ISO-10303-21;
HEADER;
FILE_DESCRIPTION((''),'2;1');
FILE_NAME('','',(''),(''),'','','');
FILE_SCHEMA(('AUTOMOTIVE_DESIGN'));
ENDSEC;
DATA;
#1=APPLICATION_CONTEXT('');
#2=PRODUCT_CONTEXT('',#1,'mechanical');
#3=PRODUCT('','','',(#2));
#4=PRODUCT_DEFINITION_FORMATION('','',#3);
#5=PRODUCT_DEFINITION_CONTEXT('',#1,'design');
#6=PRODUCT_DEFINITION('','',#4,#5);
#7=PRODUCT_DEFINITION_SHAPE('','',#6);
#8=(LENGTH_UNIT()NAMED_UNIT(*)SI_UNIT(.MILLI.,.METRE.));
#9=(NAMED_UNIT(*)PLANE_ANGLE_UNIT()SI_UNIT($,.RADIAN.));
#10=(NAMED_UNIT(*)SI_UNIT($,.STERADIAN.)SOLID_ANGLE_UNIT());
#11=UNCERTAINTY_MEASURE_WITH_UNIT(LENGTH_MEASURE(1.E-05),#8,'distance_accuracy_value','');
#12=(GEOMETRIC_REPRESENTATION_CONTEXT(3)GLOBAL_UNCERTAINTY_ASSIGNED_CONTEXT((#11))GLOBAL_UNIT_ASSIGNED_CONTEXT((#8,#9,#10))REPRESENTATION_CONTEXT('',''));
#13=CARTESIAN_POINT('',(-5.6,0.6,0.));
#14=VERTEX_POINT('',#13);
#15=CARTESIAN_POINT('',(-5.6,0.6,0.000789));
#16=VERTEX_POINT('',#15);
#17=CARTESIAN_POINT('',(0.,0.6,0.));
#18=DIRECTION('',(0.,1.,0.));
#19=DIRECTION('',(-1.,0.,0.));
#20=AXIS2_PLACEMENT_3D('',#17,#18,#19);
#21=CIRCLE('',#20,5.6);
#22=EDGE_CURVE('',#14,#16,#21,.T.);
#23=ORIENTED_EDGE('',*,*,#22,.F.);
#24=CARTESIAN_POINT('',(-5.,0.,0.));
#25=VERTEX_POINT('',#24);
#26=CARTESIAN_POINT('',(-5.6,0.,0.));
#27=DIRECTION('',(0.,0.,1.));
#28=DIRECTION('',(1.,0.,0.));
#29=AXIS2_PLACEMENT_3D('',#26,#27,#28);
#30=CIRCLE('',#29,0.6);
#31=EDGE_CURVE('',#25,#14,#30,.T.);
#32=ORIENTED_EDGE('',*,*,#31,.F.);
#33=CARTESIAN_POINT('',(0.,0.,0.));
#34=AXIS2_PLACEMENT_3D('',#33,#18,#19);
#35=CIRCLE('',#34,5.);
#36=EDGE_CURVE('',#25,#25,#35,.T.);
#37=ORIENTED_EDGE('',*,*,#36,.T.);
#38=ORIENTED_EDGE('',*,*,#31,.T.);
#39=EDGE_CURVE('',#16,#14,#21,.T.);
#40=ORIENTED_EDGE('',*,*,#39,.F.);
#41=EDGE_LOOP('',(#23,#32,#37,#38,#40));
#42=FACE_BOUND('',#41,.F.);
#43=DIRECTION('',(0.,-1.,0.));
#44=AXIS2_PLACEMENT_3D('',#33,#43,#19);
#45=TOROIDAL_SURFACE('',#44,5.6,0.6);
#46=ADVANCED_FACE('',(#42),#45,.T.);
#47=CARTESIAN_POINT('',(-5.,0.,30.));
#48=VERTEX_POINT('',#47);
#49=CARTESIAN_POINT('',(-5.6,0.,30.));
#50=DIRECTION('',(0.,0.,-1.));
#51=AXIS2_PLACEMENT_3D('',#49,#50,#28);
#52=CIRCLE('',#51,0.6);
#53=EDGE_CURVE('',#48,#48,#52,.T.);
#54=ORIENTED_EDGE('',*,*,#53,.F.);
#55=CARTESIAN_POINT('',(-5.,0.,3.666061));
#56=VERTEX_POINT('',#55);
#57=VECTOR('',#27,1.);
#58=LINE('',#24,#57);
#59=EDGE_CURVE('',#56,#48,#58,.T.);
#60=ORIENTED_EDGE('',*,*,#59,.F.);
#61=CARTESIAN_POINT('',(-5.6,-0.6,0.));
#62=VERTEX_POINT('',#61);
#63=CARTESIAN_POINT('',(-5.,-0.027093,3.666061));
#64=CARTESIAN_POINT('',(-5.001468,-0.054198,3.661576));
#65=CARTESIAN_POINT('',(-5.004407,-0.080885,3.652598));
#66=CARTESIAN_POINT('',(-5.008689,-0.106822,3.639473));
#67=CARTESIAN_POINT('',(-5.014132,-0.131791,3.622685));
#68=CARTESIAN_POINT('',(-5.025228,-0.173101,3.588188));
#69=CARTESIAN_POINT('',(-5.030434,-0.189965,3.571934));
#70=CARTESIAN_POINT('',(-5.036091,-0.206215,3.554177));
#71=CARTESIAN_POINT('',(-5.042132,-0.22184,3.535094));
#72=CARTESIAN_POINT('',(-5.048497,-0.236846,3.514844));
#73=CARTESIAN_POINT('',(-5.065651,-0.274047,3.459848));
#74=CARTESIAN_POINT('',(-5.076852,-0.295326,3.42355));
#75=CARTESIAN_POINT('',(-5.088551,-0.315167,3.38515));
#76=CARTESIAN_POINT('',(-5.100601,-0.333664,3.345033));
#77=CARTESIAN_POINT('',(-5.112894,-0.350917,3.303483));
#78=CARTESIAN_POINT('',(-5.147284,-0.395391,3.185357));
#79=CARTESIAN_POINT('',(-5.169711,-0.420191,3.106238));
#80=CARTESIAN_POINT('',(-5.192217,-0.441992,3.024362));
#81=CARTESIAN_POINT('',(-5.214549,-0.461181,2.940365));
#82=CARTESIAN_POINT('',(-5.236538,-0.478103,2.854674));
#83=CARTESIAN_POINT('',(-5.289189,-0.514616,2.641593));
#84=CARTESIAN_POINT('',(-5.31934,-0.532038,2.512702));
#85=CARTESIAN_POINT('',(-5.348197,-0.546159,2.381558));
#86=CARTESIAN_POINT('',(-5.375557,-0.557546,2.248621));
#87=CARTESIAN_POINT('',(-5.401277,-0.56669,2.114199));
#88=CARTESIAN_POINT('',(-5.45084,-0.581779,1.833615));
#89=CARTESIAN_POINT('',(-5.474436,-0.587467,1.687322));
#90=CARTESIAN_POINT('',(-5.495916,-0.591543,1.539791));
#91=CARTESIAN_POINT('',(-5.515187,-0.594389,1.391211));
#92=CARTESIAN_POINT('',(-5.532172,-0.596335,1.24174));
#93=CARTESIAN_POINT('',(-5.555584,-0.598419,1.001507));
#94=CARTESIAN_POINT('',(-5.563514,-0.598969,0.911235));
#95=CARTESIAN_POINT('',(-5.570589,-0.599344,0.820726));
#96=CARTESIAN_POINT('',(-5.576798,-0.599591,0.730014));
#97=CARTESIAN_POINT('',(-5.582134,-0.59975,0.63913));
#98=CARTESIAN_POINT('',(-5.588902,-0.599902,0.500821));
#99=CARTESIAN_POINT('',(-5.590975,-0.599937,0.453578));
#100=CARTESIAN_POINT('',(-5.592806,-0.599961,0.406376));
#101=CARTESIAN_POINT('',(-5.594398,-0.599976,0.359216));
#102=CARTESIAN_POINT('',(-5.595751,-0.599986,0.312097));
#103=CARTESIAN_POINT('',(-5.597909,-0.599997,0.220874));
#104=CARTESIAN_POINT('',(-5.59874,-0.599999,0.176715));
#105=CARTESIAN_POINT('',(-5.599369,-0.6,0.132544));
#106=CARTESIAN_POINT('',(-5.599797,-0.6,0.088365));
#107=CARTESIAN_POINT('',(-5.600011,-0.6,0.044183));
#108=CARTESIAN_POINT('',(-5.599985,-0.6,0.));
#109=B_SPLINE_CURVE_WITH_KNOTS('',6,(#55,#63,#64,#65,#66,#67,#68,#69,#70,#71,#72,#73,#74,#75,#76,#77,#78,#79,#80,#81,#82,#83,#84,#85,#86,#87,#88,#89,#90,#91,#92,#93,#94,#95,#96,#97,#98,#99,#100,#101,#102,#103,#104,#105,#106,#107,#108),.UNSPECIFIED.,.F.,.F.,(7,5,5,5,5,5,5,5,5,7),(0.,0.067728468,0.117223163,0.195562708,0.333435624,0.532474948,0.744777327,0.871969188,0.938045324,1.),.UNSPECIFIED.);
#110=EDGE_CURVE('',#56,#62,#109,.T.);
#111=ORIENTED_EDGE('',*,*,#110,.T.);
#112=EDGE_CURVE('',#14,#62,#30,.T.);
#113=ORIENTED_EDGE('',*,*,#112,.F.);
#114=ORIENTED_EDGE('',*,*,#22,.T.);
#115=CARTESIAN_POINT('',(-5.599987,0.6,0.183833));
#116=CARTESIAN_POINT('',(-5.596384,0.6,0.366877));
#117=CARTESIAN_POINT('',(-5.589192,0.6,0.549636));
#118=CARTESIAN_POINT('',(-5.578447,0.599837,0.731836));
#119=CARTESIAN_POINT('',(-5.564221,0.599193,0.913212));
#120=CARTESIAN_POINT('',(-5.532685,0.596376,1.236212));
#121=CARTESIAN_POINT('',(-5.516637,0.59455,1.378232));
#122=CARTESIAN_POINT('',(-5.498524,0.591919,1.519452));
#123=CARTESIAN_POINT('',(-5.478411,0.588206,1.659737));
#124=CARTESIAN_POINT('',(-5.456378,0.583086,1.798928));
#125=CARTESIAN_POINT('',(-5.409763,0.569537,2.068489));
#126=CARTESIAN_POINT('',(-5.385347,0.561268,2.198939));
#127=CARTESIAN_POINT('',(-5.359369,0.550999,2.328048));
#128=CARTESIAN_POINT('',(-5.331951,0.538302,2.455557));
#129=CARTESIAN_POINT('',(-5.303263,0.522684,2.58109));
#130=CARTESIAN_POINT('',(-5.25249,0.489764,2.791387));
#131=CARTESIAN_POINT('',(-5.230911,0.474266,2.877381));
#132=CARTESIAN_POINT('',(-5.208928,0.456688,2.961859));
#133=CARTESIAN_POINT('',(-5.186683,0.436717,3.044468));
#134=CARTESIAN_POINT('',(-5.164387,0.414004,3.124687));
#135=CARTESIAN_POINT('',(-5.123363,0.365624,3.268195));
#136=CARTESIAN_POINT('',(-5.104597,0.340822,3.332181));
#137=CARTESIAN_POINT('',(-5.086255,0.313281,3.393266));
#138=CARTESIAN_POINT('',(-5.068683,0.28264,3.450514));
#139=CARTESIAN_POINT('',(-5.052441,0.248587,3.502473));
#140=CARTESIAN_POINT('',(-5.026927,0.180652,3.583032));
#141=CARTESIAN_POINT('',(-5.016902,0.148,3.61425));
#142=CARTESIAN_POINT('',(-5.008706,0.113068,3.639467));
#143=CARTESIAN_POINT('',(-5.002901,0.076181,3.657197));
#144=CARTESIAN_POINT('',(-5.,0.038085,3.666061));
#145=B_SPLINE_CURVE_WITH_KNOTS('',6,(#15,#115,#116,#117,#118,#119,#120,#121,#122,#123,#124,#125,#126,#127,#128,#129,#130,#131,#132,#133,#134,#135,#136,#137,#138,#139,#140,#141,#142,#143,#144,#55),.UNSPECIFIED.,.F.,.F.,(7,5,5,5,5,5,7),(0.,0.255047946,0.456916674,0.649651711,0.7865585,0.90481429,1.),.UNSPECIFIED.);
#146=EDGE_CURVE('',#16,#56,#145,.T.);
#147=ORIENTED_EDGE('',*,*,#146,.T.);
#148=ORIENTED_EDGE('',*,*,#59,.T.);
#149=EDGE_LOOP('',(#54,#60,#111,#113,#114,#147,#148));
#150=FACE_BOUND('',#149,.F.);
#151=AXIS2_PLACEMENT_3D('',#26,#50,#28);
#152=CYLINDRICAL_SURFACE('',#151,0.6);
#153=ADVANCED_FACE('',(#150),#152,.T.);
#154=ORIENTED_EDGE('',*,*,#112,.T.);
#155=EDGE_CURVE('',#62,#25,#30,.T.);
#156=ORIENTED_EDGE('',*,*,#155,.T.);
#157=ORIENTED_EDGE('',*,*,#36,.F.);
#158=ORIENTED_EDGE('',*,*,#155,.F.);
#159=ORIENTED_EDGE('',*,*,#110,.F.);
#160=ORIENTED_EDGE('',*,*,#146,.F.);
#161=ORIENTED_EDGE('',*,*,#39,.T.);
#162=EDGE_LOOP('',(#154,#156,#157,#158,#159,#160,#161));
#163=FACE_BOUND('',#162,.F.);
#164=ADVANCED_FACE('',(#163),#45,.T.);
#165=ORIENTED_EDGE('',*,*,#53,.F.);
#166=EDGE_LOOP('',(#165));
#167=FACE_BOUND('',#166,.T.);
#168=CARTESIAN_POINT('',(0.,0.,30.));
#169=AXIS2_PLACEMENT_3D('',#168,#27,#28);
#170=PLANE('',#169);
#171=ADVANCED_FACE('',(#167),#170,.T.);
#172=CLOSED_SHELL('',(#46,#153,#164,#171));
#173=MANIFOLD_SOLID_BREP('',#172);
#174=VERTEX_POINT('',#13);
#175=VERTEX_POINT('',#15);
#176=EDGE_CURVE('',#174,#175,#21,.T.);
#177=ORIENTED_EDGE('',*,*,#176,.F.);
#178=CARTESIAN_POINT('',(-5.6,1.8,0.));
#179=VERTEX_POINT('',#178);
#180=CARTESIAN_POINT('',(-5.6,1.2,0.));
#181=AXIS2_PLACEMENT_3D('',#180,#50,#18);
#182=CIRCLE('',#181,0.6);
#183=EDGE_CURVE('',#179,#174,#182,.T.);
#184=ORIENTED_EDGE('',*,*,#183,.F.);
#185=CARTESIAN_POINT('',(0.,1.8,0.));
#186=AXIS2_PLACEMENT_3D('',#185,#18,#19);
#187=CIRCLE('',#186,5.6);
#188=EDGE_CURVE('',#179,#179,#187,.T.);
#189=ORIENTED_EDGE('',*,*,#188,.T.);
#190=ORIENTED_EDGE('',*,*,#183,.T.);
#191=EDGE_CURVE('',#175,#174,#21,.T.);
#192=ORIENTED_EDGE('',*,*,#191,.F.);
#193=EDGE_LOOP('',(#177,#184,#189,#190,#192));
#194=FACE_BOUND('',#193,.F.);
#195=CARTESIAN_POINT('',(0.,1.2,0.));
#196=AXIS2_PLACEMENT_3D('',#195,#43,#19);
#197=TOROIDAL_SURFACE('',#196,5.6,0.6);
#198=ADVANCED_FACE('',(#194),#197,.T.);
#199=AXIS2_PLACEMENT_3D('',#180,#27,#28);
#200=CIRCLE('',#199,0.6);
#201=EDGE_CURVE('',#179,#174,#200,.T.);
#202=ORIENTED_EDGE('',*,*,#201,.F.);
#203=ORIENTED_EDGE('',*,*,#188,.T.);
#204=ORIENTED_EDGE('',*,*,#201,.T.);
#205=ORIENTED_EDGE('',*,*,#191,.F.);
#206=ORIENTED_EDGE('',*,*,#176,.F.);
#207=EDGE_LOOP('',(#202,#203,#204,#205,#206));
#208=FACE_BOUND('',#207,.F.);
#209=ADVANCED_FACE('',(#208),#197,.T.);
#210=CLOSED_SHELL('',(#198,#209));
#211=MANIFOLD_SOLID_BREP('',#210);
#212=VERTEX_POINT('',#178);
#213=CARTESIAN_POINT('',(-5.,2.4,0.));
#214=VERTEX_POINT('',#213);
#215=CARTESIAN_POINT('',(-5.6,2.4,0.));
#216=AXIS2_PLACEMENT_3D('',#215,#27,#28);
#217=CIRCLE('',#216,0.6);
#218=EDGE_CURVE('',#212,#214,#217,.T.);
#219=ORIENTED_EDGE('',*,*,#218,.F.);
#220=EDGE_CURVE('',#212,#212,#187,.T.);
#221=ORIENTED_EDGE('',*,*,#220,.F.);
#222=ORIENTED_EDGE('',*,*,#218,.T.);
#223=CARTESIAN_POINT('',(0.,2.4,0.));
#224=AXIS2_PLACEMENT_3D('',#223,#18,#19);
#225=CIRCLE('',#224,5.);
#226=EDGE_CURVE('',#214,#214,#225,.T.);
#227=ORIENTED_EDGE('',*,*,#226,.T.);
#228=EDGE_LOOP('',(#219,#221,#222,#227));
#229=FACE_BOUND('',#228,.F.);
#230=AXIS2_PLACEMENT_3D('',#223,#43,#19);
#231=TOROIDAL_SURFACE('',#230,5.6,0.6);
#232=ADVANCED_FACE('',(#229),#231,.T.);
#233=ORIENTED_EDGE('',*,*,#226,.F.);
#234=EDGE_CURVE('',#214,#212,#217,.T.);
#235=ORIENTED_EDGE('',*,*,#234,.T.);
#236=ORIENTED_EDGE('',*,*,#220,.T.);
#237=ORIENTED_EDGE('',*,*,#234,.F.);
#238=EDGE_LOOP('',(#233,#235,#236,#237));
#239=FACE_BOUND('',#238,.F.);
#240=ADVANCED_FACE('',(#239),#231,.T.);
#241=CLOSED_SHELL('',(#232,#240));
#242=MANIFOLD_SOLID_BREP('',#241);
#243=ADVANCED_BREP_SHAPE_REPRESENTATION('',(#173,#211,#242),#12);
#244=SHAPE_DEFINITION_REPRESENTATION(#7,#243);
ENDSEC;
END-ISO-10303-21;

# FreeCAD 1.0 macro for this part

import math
import FreeCAD as App
import Part
import Sketcher

V = App.Vector
Q = App.Units.Quantity

doc = App.newDocument("Part")
body = doc.addObject("PartDesign::Body", "Body")
body.AllowCompound = True

sketch1 = body.newObject("Sketcher::SketchObject", "Sketch")
sketch1.AttachmentSupport = (doc.getObject("XY_Plane"), [""])
sketch1.MapMode = "FlatFace"
sketch1.addGeometry([
    Part.Circle(V(-5.6, 0, 0), V(0, 0, 1), 0.6),
    Part.Circle(V(-5.6, 2.4, 0), V(0, 0, 1), 0.6),
    Part.ArcOfCircle(Part.Circle(V(-5.6, 1.2, 0), V(0, 0, 1), 0.6), math.radians(90), math.radians(270)),
    Part.ArcOfCircle(Part.Circle(V(-5.6, 1.2, 0), V(0, 0, 1), 0.6), math.radians(-90), math.radians(90)),
], False)
sketch1.addConstraint([
    Sketcher.Constraint("Tangent", 2, 1, 3, 2),
    Sketcher.Constraint("Coincident", 3, 1, 2, 2),
    Sketcher.Constraint("Equal", 0, 1),
    Sketcher.Constraint("Equal", 1, 2),
    Sketcher.Constraint("PointOnObject", 0, 3, -1),
    Sketcher.Constraint("Vertical", 0, 3, 1, 3),
    Sketcher.Constraint("Vertical", 1, 3, 2, 3),
    Sketcher.Constraint("Vertical", 3, 3, 2, 1),
    Sketcher.Constraint("Vertical", 2, 1, 3, 1),
    Sketcher.Constraint("Diameter", 0, Q("1.2 mm")),
    Sketcher.Constraint("DistanceY", -1, 1, 2, 3, Q("1.2 mm")),
    Sketcher.Constraint("DistanceY", 2, 3, 1, 3, Q("1.2 mm")),
    Sketcher.Constraint("DistanceX", 0, 3, -1, 1, Q("5.6 mm")),
])
revolution = body.newObject("PartDesign::Revolution", "Revolution")
revolution.Profile = sketch1
revolution.ReferenceAxis = (sketch1, ["V_Axis"])
revolution.Angle = 360

sketch2 = body.newObject("Sketcher::SketchObject", "Sketch001")
sketch2.AttachmentSupport = (doc.getObject("XY_Plane"), [""])
sketch2.MapMode = "FlatFace"
sketch2.addGeometry(Part.Circle(V(-5.6, 0, 0), V(0, 0, 1), 0.6), False)
sketch2.addConstraint([
    Sketcher.Constraint("PointOnObject", 0, 3, -1),
    Sketcher.Constraint("Diameter", 0, Q("1.2 mm")),
    Sketcher.Constraint("DistanceX", 0, 3, -1, 1, Q("5.6 mm")),
])
pad1 = body.newObject("PartDesign::Pad", "Pad")
pad1.Profile = sketch2
pad1.Length = 30

doc.recompute()
